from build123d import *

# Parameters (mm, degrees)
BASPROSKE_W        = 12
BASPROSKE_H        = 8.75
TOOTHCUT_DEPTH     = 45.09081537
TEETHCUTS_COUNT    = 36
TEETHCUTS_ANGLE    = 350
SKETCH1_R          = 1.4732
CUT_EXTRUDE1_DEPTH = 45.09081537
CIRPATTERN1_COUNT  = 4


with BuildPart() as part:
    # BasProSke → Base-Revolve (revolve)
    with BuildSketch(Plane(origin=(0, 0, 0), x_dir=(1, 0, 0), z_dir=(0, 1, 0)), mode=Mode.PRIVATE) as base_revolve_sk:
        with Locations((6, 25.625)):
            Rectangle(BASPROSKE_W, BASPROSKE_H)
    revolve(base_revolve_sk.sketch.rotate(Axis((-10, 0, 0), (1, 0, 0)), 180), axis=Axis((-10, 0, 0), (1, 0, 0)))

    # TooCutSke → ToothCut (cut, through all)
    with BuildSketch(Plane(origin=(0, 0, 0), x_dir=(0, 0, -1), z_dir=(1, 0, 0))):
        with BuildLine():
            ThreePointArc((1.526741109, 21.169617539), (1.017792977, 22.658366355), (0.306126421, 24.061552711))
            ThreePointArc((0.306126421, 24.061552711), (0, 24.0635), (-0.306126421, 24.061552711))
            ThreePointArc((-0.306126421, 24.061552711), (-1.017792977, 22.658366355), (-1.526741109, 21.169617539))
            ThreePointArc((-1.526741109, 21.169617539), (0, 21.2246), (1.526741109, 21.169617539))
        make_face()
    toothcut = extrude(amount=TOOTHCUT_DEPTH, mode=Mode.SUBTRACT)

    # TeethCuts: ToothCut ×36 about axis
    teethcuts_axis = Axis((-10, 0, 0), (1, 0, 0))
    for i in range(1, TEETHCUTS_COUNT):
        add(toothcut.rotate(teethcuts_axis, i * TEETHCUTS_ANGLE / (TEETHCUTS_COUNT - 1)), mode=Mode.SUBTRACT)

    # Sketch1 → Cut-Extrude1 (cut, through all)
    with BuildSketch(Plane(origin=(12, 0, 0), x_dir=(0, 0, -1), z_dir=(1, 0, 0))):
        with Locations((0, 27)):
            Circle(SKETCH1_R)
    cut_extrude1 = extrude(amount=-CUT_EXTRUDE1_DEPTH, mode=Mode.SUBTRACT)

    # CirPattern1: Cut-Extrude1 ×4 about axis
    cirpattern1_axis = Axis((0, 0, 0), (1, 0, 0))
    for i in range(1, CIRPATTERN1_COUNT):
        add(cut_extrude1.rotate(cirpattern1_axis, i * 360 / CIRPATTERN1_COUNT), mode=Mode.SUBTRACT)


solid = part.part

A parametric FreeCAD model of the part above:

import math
import FreeCAD as App
import Part
import Sketcher
from FreeCAD import Vector

doc = App.newDocument("Part")
params = doc.addObject("Spreadsheet::Sheet", "Params")
for row, (alias, value) in enumerate([
    ("sketch1_width", "12 mm"),
    ("sketch1_height", "8.75 mm"),
    ("revolution_angle", "360 deg"),
    ("sketch2_radius", "11.25 mm"),
], start=1):
    params.set(f"A{row}", alias)
    params.set(f"B{row}", "=" + value)
    params.setAlias(f"B{row}", alias)

body = doc.addObject("PartDesign::Body", "Body")

# Sketch on XZ plane
sketch1 = doc.addObject("Sketcher::SketchObject", "Sketch")
body.addObject(sketch1)
sketch1.AttachmentSupport = (doc.XZ_Plane, [""])
sketch1.MapMode = "FlatFace"
sketch1.addGeometry([
    Part.LineSegment(Vector(0, -30, 0), Vector(0, -21.25, 0)),
    Part.LineSegment(Vector(0, -21.25, 0), Vector(12, -21.25, 0)),
    Part.LineSegment(Vector(12, -21.25, 0), Vector(12, -30, 0)),
    Part.LineSegment(Vector(12, -30, 0), Vector(0, -30, 0)),
], False)
sketch1.addConstraint([
    Sketcher.Constraint("Coincident", 0, 2, 1, 1),
    Sketcher.Constraint("Coincident", 1, 2, 2, 1),
    Sketcher.Constraint("Coincident", 2, 2, 3, 1),
    Sketcher.Constraint("Coincident", 3, 2, 0, 1),
    Sketcher.Constraint("Vertical", 0),
    Sketcher.Constraint("Horizontal", 1),
    Sketcher.Constraint("Vertical", 2),
    Sketcher.Constraint("Horizontal", 3),
    Sketcher.Constraint("PointOnObject", 0, 2, -2),
    Sketcher.Constraint("DistanceX", 1, 1, 1, 2, 12.0),
    Sketcher.Constraint("DistanceY", 2, 2, -1, 1, 30.0),
    Sketcher.Constraint("DistanceY", 0, 1, 0, 2, 8.75),
])
sketch1.setExpression("Constraints[9]", "Params.sketch1_width")
sketch1.setExpression("Constraints[11]", "Params.sketch1_height")
revolution = doc.addObject("PartDesign::Revolution", "Revolution")
body.addObject(revolution)
revolution.Profile = sketch1
revolution.ReferenceAxis = (sketch1, ["H_Axis"])
revolution.setExpression("Angle", "Params.revolution_angle")

# Sketch on YZ plane
sketch2 = doc.addObject("Sketcher::SketchObject", "Sketch001")
body.addObject(sketch2)
sketch2.AttachmentSupport = (doc.YZ_Plane, [""])
sketch2.MapMode = "FlatFace"
sketch2.addGeometry([
    Part.ArcOfCircle(Part.Circle(Vector(18.283722, 9.34681, 0), Vector(0, 0, 1), 11.25), math.radians(-75.136092), math.radians(-59.097085)),
    Part.ArcOfCircle(Part.Circle(Vector(0, 0, 0), Vector(0, 0, 1), 24.0635), math.radians(-0.728914), math.radians(0.728914)),
    Part.ArcOfCircle(Part.Circle(Vector(18.283722, -9.34681, 0), Vector(0, 0, 1), 11.25), math.radians(59.097085), math.radians(75.136092)),
    Part.ArcOfCircle(Part.Circle(Vector(0, 0, 0), Vector(0, 0, 1), 21.2246), math.radians(-4.124998), math.radians(4.124998)),
], False)
sketch2.addConstraint([
    Sketcher.Constraint("Coincident", 0, 2, 1, 1),
    Sketcher.Constraint("Coincident", 1, 2, 2, 1),
    Sketcher.Constraint("Coincident", 2, 2, 3, 2),
    Sketcher.Constraint("Coincident", 3, 1, 0, 1),
    Sketcher.Constraint("Coincident", 1, 3, -1, 1),
    Sketcher.Constraint("Coincident", 3, 3, -1, 1),
    Sketcher.Constraint("Equal", 0, 2),
    Sketcher.Constraint("Symmetric", 0, 3, 2, 3, -1),
    Sketcher.Constraint("Radius", 0, 11.25),
    Sketcher.Constraint("Radius", 1, 24.0635),
    Sketcher.Constraint("Radius", 3, 21.2246),
    Sketcher.Constraint("DistanceY", -1, 1, 0, 3, 9.34681),
    Sketcher.Constraint("DistanceY", -1, 1, 2, 2, 1.526741),
])
sketch2.setExpression("Constraints[8]", "Params.sketch2_radius")
pocket1 = doc.addObject("PartDesign::Pocket", "Pocket")
body.addObject(pocket1)
pocket1.Profile = sketch2
pocket1.Type = "ThroughAll"
pocket1.Reversed = True
doc.recompute()

polarpattern = doc.addObject("PartDesign::PolarPattern", "PolarPattern")
body.addObject(polarpattern)
polarpattern.Originals = [pocket1]
polarpattern.Axis = (doc.X_Axis, [""])
polarpattern.Angle = 360
polarpattern.Occurrences = 36
body.Tip = polarpattern

# Sketch on YZ plane
sketch3 = doc.addObject("Sketcher::SketchObject", "Sketch002")
body.addObject(sketch3)
sketch3.AttachmentSupport = (doc.YZ_Plane, [""])
sketch3.MapMode = "FlatFace"
sketch3.AttachmentOffset = App.Placement(Vector(0, 0, 12), App.Rotation())
sketch3.addGeometry(Part.Circle(Vector(27, 0, 0), Vector(0, 0, 1), 1.4732), False)
sketch3.addConstraint([
    Sketcher.Constraint("PointOnObject", 0, 3, -1),
    Sketcher.Constraint("DistanceX", -1, 1, 0, 3, 27.0),
    Sketcher.Constraint("Diameter", 0, 2.9464),
])
pocket2 = doc.addObject("PartDesign::Pocket", "Pocket001")
body.addObject(pocket2)
pocket2.Profile = sketch3
pocket2.Type = "ThroughAll"
doc.recompute()

polarpattern2 = doc.addObject("PartDesign::PolarPattern", "PolarPattern001")
body.addObject(polarpattern2)
polarpattern2.Originals = [pocket2]
polarpattern2.Axis = (doc.X_Axis, [""])
polarpattern2.Angle = 360
polarpattern2.Occurrences = 4
body.Tip = polarpattern2

doc.recompute()
